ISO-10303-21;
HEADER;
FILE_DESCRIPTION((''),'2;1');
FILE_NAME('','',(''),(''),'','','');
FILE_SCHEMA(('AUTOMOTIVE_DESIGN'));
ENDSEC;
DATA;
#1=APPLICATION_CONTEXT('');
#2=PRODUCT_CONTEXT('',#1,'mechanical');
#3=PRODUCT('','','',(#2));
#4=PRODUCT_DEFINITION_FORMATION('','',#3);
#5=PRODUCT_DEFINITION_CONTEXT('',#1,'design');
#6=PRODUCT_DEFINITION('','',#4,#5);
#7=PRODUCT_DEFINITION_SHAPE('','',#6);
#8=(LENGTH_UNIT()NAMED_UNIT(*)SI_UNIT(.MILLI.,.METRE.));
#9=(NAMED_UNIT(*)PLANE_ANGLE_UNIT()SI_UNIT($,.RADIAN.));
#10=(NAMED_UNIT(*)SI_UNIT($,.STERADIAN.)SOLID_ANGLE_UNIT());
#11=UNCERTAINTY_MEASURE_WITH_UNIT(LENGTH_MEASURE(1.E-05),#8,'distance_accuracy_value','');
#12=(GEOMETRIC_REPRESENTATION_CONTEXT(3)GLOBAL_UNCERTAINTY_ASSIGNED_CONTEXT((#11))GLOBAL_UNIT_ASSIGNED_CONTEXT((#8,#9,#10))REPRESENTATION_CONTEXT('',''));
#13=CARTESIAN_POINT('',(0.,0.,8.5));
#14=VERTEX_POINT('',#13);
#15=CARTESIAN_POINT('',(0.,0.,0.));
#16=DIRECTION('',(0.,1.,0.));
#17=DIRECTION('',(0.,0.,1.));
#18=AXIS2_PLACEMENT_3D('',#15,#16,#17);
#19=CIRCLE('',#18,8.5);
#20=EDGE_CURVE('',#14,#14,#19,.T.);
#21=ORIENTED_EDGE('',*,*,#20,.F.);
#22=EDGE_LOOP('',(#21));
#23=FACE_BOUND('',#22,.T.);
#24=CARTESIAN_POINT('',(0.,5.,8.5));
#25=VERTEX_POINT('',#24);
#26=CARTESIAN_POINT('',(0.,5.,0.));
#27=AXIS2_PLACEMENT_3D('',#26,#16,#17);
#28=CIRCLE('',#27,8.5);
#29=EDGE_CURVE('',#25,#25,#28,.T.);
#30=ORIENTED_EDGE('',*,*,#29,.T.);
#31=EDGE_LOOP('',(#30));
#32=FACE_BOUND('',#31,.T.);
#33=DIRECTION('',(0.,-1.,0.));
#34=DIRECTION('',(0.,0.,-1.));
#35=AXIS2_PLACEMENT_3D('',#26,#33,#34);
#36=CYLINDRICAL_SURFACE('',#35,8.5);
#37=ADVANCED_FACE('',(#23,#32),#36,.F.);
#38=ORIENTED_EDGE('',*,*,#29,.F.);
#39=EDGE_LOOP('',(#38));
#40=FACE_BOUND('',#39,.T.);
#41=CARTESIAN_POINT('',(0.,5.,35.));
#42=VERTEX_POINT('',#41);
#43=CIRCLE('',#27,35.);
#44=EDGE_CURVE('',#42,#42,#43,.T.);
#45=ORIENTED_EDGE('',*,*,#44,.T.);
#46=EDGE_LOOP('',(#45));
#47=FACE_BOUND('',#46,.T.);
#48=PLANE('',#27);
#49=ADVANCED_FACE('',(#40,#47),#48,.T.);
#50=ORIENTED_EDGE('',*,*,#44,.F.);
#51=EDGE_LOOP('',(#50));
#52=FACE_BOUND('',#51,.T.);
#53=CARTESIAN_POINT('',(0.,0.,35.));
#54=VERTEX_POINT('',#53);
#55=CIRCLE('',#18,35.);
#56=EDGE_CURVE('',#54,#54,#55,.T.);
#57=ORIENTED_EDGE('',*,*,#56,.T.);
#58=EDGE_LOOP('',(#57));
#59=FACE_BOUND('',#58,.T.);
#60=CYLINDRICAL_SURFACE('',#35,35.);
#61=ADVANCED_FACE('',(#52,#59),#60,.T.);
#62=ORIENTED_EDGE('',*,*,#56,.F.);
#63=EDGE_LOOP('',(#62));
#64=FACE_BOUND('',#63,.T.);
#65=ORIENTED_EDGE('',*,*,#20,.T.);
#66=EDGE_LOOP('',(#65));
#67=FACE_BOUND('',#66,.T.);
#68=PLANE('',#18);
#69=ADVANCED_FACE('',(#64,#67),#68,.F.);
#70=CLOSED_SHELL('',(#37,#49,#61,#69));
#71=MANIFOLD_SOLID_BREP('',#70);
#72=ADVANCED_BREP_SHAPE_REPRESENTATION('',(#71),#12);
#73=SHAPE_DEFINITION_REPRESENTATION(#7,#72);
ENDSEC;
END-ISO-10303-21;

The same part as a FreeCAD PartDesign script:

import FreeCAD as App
import Part
import Sketcher

V = App.Vector

doc = App.newDocument("Part")
body = doc.addObject("PartDesign::Body", "Body")

# Sketch on XZ plane
sketch1 = body.newObject("Sketcher::SketchObject", "Sketch")
sketch1.AttachmentSupport = (doc.getObject("XZ_Plane"), [""])
sketch1.MapMode = "FlatFace"
sketch1.addGeometry(Part.Circle(V(0, 0, 0), V(0, 0, 1), 35), False)
sketch1.addGeometry(Part.Circle(V(0, 0, 0), V(0, 0, 1), 8), False)
sketch1.addConstraint(Sketcher.Constraint("Coincident", 0, 3, -1, 1))
sketch1.addConstraint(Sketcher.Constraint("Coincident", 1, 3, -1, 1))
sketch1.addConstraint(Sketcher.Constraint("Diameter", 0, 70.0))
sketch1.addConstraint(Sketcher.Constraint("Diameter", 1, 17.0))
pad1 = body.newObject("PartDesign::Pad", "Pad")
pad1.Profile = sketch1
pad1.Length = 5
pad1.Reversed = True

doc.recompute()
